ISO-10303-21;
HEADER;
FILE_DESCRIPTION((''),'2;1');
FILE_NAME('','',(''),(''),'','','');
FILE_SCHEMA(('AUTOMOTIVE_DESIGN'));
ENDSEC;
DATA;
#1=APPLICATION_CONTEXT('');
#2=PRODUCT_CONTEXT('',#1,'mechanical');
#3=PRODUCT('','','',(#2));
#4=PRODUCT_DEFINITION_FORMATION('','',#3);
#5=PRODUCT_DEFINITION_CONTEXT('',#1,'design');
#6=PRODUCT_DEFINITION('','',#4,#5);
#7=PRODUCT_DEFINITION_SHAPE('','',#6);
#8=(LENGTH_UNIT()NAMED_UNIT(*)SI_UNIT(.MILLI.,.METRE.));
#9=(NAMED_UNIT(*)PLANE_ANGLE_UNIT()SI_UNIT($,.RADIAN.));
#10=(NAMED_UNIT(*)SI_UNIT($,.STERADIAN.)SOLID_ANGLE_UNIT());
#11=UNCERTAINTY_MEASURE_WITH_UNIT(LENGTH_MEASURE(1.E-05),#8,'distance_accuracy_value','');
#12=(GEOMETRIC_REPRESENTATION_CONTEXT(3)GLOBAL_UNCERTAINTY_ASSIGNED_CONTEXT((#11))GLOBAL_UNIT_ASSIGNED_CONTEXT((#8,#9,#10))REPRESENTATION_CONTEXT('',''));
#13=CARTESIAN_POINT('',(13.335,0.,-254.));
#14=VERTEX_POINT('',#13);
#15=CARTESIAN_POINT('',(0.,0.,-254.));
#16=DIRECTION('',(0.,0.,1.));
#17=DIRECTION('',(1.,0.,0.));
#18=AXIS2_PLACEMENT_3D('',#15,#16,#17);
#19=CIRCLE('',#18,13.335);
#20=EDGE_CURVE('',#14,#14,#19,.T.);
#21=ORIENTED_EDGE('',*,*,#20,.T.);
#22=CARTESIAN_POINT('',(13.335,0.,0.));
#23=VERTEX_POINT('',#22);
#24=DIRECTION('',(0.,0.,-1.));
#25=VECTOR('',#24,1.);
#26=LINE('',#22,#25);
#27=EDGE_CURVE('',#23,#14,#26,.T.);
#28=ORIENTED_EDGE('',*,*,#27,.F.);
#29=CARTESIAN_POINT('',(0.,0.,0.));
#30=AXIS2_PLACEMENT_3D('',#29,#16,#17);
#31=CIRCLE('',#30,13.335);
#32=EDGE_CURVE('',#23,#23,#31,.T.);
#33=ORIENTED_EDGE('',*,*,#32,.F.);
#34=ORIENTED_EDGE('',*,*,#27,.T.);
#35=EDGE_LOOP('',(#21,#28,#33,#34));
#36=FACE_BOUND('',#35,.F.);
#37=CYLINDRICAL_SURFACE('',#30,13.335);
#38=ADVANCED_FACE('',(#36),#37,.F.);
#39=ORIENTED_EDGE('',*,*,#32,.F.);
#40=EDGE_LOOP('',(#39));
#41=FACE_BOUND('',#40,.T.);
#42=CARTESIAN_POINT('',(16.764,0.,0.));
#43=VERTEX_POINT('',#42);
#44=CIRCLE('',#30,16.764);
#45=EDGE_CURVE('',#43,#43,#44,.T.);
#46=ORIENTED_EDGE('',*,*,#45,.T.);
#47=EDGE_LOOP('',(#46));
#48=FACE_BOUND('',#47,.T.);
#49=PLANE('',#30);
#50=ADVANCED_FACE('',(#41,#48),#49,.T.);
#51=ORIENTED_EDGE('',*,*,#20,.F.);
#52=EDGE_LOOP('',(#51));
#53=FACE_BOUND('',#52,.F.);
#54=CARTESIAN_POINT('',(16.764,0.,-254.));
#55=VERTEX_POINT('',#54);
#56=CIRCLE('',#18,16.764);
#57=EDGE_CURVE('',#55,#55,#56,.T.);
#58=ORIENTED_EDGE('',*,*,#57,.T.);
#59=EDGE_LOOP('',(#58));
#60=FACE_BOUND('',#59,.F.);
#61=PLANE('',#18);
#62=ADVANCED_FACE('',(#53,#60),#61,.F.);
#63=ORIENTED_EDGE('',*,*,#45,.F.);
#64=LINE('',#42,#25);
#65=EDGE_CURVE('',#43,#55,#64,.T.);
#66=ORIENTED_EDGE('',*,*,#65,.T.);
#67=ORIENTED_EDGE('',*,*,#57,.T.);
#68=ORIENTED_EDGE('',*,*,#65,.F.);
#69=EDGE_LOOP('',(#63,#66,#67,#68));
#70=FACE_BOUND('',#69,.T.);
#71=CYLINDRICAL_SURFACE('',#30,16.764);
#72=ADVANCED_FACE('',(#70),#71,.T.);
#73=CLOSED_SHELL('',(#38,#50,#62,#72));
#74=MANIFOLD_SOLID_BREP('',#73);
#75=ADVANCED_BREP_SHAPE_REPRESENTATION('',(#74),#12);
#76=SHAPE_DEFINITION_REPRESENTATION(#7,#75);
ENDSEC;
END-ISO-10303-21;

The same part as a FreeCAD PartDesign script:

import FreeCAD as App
import Part
import Sketcher
from FreeCAD import Vector
Q = App.Units.Quantity

doc = App.newDocument("Part")
body = doc.addObject("PartDesign::Body", "Body")

sketch1 = body.newObject("Sketcher::SketchObject", "Sketch")
sketch1.AttachmentSupport = (doc.getObject("XY_Plane"), [""])
sketch1.MapMode = "FlatFace"
sketch1.addGeometry([
    Part.Circle(Vector(0, 0, 0), Vector(0, 0, 1), 17),
    Part.Circle(Vector(0, 0, 0), Vector(0, 0, 1), 13),
], False)
sketch1.addConstraint([
    Sketcher.Constraint("Coincident", 0, 3, -1, 1),
    Sketcher.Constraint("Coincident", 1, 3, -1, 1),
    Sketcher.Constraint("Diameter", 0, Q("1.32 in")),
    Sketcher.Constraint("Diameter", 1, Q("1.05 in")),
])
pad1 = body.newObject("PartDesign::Pad", "Pad")
pad1.Profile = sketch1
pad1.Length = Q("10 in")
pad1.Reversed = True

doc.recompute()
